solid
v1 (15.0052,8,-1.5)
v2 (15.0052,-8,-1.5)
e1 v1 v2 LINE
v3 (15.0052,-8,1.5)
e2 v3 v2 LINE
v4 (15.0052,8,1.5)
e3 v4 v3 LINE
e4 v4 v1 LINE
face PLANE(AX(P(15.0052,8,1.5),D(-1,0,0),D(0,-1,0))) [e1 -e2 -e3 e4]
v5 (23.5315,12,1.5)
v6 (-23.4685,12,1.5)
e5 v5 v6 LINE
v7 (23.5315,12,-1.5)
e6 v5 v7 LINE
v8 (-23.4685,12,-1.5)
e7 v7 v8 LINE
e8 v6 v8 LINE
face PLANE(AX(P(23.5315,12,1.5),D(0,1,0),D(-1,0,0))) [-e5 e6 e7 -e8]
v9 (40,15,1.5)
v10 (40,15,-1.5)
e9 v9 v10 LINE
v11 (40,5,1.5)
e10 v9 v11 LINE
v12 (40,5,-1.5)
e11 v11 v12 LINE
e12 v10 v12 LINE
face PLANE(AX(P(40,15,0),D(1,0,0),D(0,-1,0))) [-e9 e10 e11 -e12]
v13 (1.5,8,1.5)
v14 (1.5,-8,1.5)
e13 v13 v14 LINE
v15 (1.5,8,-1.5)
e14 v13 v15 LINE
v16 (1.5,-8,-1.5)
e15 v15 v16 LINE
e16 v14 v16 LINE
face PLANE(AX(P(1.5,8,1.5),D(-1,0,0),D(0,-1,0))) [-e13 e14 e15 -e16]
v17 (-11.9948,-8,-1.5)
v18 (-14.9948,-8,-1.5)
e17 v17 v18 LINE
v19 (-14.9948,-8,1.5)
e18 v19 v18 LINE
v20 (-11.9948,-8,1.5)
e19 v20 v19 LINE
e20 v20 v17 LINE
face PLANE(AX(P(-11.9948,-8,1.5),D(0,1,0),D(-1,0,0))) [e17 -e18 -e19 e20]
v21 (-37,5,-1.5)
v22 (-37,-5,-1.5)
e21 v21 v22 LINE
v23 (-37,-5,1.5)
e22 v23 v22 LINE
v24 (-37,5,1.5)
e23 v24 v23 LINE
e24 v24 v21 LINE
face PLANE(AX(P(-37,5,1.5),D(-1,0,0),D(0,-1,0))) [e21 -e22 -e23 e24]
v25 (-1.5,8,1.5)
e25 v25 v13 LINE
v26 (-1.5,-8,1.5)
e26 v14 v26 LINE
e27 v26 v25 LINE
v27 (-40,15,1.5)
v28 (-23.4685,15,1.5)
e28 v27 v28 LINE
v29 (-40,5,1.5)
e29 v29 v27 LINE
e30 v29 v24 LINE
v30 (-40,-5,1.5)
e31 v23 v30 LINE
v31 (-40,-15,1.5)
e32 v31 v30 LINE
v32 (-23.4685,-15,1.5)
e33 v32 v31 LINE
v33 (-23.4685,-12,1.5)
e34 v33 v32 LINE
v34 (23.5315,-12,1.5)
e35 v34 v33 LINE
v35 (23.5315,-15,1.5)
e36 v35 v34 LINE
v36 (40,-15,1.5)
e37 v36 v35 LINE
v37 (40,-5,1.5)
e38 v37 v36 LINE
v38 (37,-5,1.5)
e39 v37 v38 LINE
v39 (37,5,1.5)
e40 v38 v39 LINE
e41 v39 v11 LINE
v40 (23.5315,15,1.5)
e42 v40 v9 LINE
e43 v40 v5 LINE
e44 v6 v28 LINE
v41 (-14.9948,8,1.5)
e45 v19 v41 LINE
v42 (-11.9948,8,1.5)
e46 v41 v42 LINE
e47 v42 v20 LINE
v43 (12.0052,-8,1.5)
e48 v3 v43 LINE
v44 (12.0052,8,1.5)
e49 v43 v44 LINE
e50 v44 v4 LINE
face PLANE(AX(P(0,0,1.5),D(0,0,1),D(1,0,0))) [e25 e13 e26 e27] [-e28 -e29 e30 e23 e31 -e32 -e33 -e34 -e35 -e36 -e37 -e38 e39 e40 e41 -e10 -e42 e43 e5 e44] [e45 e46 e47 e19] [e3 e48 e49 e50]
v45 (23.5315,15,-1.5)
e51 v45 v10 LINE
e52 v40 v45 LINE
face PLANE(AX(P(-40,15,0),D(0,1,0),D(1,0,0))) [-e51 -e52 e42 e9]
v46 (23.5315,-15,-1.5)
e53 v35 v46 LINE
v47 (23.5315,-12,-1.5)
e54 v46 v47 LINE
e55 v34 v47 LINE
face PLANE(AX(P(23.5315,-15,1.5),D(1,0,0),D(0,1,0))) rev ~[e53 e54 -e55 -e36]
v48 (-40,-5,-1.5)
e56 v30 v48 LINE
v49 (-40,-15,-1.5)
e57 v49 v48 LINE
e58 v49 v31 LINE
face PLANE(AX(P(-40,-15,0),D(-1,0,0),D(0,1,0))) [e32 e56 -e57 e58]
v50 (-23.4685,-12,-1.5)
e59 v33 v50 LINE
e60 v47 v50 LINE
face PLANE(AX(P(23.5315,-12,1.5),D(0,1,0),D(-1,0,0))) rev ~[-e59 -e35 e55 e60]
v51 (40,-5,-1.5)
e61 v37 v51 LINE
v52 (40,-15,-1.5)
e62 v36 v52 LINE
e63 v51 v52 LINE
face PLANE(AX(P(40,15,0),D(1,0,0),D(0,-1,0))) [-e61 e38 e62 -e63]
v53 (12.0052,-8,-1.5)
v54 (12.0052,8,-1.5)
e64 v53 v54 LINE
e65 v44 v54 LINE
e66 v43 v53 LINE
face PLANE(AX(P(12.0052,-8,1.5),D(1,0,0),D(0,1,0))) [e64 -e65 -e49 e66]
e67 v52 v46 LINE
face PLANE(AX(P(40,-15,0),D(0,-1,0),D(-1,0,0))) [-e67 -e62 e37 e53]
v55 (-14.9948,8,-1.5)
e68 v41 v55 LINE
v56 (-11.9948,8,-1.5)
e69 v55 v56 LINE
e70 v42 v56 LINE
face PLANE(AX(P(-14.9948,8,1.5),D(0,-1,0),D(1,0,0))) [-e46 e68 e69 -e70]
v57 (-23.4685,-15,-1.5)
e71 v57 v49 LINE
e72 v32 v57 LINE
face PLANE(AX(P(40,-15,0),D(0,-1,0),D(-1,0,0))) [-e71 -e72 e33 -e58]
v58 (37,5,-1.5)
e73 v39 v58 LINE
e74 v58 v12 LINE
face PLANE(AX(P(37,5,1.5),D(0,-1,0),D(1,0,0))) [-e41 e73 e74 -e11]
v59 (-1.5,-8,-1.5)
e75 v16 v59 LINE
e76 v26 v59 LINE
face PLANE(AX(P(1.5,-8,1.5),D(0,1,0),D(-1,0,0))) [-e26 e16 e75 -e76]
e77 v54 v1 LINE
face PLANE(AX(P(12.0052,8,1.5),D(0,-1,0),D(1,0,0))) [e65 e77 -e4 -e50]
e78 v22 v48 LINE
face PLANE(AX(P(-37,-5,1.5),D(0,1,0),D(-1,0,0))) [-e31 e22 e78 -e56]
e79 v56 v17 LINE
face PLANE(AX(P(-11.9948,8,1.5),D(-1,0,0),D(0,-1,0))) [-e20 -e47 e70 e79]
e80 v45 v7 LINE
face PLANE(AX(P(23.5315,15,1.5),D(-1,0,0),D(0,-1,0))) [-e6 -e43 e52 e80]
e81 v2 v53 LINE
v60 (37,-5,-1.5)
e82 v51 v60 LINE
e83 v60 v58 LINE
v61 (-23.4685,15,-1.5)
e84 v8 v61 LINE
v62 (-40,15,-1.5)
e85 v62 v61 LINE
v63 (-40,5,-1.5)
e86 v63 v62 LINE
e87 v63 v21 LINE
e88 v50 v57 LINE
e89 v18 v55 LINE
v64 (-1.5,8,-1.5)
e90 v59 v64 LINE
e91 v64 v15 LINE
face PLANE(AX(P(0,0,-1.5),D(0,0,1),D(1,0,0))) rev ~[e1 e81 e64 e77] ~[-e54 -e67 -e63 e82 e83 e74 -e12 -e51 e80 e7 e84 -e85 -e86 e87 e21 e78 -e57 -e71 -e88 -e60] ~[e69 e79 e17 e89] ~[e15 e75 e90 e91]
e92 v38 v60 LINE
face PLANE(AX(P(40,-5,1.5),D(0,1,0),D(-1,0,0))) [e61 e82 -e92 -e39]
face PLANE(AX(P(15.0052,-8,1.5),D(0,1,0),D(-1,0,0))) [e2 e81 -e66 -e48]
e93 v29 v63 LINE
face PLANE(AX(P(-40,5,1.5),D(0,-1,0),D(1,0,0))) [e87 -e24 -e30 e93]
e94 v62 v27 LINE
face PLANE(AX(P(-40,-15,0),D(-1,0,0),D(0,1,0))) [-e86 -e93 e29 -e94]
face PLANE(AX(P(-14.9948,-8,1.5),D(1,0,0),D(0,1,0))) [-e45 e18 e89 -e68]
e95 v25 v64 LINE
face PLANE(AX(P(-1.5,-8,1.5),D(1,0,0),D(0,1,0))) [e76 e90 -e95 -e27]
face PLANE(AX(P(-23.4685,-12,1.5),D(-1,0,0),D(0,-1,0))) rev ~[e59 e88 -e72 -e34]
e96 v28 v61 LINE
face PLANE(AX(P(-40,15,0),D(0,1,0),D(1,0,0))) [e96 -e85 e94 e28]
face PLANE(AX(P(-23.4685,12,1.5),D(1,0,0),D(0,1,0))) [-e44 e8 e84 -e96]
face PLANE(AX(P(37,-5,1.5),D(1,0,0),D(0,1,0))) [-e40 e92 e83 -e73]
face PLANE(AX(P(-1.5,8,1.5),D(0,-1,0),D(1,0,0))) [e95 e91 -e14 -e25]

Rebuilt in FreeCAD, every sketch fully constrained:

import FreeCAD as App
import Part
import Sketcher


def add_polygon(sketch, points):
    """Adds a closed chain of lines whose ends are joined by coincident constraints."""
    first, n = sketch.GeometryCount, len(points)
    for a, b in zip(points, points[1:] + points[:1]):
        sketch.addGeometry(Part.LineSegment(App.Vector(*a, 0), App.Vector(*b, 0)), False)
    for i in range(n):
        sketch.addConstraint(Sketcher.Constraint("Coincident", first + i, 2, first + (i + 1) % n, 1))

doc = App.newDocument("Part")
body = doc.addObject("PartDesign::Body", "Body")

# Sketch on XY plane
sketch1 = doc.addObject("Sketcher::SketchObject", "Sketch")
body.addObject(sketch1)
sketch1.AttachmentSupport = (doc.XY_Plane, [""])
sketch1.MapMode = "FlatFace"
add_polygon(sketch1, [(40, 15), (-40, 15), (-40, -15), (40, -15)])  # lines 0-3
sketch1.addConstraint(Sketcher.Constraint("Horizontal", 0))
sketch1.addConstraint(Sketcher.Constraint("Vertical", 1))
sketch1.addConstraint(Sketcher.Constraint("Horizontal", 2))
sketch1.addConstraint(Sketcher.Constraint("Vertical", 3))
sketch1.addConstraint(Sketcher.Constraint("Symmetric", 0, 2, 2, 2, -1, 1))
sketch1.addConstraint(Sketcher.Constraint("DistanceX", 0, 2, 0, 1, 80.0))
sketch1.addConstraint(Sketcher.Constraint("DistanceY", 1, 2, 1, 1, 30.0))
pad1 = doc.addObject("PartDesign::Pad", "Pad")
body.addObject(pad1)
pad1.Profile = sketch1
pad1.Length = 3
pad1.Midplane = True

# Sketch on XY plane
sketch2 = doc.addObject("Sketcher::SketchObject", "Sketch001")
body.addObject(sketch2)
sketch2.AttachmentSupport = (doc.XY_Plane, [""])
sketch2.MapMode = "FlatFace"
sketch2.AttachmentOffset = App.Placement(App.Vector(0, 0, 1.5), App.Rotation())
add_polygon(sketch2, [(23.5, 15), (-23.5, 15), (-23.5, 12), (23.5, 12)])  # lines 0-3
add_polygon(sketch2, [(-37, 5), (-40, 5), (-40, -5), (-37, -5)])  # lines 4-7
add_polygon(sketch2, [(40, -5), (40, 5), (37, 5), (37, -5)])  # lines 8-11
add_polygon(sketch2, [(-23.5, -12), (-23.5, -15), (23.5, -15), (23.5, -12)])  # lines 12-15
add_polygon(sketch2, [(-12, 8), (-15, 8), (-15, -8), (-12, -8)])  # lines 16-19
add_polygon(sketch2, [(1.5, -8), (1.5, 8), (-1.5, 8), (-1.5, -8)])  # lines 20-23
add_polygon(sketch2, [(15, 8), (12, 8), (12, -8), (15, -8)])  # lines 24-27
sketch2.addConstraint(Sketcher.Constraint("Horizontal", 0))
sketch2.addConstraint(Sketcher.Constraint("Vertical", 1))
sketch2.addConstraint(Sketcher.Constraint("Horizontal", 2))
sketch2.addConstraint(Sketcher.Constraint("Vertical", 3))
sketch2.addConstraint(Sketcher.Constraint("Horizontal", 4))
sketch2.addConstraint(Sketcher.Constraint("Vertical", 5))
sketch2.addConstraint(Sketcher.Constraint("Horizontal", 6))
sketch2.addConstraint(Sketcher.Constraint("Vertical", 7))
sketch2.addConstraint(Sketcher.Constraint("Vertical", 8))
sketch2.addConstraint(Sketcher.Constraint("Horizontal", 9))
sketch2.addConstraint(Sketcher.Constraint("Vertical", 10))
sketch2.addConstraint(Sketcher.Constraint("Horizontal", 11))
sketch2.addConstraint(Sketcher.Constraint("Vertical", 12))
sketch2.addConstraint(Sketcher.Constraint("Horizontal", 13))
sketch2.addConstraint(Sketcher.Constraint("Vertical", 14))
sketch2.addConstraint(Sketcher.Constraint("Horizontal", 15))
sketch2.addConstraint(Sketcher.Constraint("Horizontal", 16))
sketch2.addConstraint(Sketcher.Constraint("Vertical", 17))
sketch2.addConstraint(Sketcher.Constraint("Horizontal", 18))
sketch2.addConstraint(Sketcher.Constraint("Vertical", 19))
sketch2.addConstraint(Sketcher.Constraint("Vertical", 20))
sketch2.addConstraint(Sketcher.Constraint("Horizontal", 21))
sketch2.addConstraint(Sketcher.Constraint("Vertical", 22))
sketch2.addConstraint(Sketcher.Constraint("Horizontal", 23))
sketch2.addConstraint(Sketcher.Constraint("Horizontal", 24))
sketch2.addConstraint(Sketcher.Constraint("Vertical", 25))
sketch2.addConstraint(Sketcher.Constraint("Horizontal", 26))
sketch2.addConstraint(Sketcher.Constraint("Vertical", 27))
sketch2.addConstraint(Sketcher.Constraint("Symmetric", 5, 2, 8, 2, -1, 1))
sketch2.addConstraint(Sketcher.Constraint("Symmetric", 7, 2, 10, 2, -1, 1))
sketch2.addConstraint(Sketcher.Constraint("Symmetric", 20, 2, 22, 2, -1, 1))
sketch2.addConstraint(Sketcher.Constraint("Symmetric", 0, 2, 12, 2, -1))
sketch2.addConstraint(Sketcher.Constraint("Symmetric", 2, 2, 14, 2, -1))
sketch2.addConstraint(Sketcher.Constraint("Horizontal", 7, 2, 8, 2))
sketch2.addConstraint(Sketcher.Constraint("Horizontal", 19, 2, 20, 2))
sketch2.addConstraint(Sketcher.Constraint("Horizontal", 18, 2, 22, 2))
sketch2.addConstraint(Sketcher.Constraint("Horizontal", 21, 2, 24, 2))
sketch2.addConstraint(Sketcher.Constraint("Horizontal", 23, 2, 25, 2))
sketch2.addConstraint(Sketcher.Constraint("Equal", 11, 16))
sketch2.addConstraint(Sketcher.Constraint("Equal", 18, 21))
sketch2.addConstraint(Sketcher.Constraint("Equal", 23, 24))
sketch2.addConstraint(Sketcher.Constraint("Equal", 26, 1))
sketch2.addConstraint(Sketcher.Constraint("DistanceX", 4, 2, 4, 1, 3.0))
sketch2.addConstraint(Sketcher.Constraint("DistanceY", 5, 2, 5, 1, 10.0))
sketch2.addConstraint(Sketcher.Constraint("DistanceY", 4, 2, 0, 2, 10.0))
sketch2.addConstraint(Sketcher.Constraint("DistanceY", 7, 2, 16, 2, 3.0))
sketch2.addConstraint(Sketcher.Constraint("DistanceX", 0, 2, 0, 1, 47.0))
sketch2.addConstraint(Sketcher.Constraint("DistanceX", 4, 2, -1, 1, 40.0))
sketch2.addConstraint(Sketcher.Constraint("DistanceX", 0, 2, -1, 1, 23.4685))
sketch2.addConstraint(Sketcher.Constraint("DistanceX", 16, 2, -1, 1, 14.9948))
sketch2.addConstraint(Sketcher.Constraint("DistanceX", -1, 1, 24, 2, 12.0052))
pocket1 = doc.addObject("PartDesign::Pocket", "Pocket")
body.addObject(pocket1)
pocket1.Profile = sketch2
pocket1.Length = 3

doc.recompute()
